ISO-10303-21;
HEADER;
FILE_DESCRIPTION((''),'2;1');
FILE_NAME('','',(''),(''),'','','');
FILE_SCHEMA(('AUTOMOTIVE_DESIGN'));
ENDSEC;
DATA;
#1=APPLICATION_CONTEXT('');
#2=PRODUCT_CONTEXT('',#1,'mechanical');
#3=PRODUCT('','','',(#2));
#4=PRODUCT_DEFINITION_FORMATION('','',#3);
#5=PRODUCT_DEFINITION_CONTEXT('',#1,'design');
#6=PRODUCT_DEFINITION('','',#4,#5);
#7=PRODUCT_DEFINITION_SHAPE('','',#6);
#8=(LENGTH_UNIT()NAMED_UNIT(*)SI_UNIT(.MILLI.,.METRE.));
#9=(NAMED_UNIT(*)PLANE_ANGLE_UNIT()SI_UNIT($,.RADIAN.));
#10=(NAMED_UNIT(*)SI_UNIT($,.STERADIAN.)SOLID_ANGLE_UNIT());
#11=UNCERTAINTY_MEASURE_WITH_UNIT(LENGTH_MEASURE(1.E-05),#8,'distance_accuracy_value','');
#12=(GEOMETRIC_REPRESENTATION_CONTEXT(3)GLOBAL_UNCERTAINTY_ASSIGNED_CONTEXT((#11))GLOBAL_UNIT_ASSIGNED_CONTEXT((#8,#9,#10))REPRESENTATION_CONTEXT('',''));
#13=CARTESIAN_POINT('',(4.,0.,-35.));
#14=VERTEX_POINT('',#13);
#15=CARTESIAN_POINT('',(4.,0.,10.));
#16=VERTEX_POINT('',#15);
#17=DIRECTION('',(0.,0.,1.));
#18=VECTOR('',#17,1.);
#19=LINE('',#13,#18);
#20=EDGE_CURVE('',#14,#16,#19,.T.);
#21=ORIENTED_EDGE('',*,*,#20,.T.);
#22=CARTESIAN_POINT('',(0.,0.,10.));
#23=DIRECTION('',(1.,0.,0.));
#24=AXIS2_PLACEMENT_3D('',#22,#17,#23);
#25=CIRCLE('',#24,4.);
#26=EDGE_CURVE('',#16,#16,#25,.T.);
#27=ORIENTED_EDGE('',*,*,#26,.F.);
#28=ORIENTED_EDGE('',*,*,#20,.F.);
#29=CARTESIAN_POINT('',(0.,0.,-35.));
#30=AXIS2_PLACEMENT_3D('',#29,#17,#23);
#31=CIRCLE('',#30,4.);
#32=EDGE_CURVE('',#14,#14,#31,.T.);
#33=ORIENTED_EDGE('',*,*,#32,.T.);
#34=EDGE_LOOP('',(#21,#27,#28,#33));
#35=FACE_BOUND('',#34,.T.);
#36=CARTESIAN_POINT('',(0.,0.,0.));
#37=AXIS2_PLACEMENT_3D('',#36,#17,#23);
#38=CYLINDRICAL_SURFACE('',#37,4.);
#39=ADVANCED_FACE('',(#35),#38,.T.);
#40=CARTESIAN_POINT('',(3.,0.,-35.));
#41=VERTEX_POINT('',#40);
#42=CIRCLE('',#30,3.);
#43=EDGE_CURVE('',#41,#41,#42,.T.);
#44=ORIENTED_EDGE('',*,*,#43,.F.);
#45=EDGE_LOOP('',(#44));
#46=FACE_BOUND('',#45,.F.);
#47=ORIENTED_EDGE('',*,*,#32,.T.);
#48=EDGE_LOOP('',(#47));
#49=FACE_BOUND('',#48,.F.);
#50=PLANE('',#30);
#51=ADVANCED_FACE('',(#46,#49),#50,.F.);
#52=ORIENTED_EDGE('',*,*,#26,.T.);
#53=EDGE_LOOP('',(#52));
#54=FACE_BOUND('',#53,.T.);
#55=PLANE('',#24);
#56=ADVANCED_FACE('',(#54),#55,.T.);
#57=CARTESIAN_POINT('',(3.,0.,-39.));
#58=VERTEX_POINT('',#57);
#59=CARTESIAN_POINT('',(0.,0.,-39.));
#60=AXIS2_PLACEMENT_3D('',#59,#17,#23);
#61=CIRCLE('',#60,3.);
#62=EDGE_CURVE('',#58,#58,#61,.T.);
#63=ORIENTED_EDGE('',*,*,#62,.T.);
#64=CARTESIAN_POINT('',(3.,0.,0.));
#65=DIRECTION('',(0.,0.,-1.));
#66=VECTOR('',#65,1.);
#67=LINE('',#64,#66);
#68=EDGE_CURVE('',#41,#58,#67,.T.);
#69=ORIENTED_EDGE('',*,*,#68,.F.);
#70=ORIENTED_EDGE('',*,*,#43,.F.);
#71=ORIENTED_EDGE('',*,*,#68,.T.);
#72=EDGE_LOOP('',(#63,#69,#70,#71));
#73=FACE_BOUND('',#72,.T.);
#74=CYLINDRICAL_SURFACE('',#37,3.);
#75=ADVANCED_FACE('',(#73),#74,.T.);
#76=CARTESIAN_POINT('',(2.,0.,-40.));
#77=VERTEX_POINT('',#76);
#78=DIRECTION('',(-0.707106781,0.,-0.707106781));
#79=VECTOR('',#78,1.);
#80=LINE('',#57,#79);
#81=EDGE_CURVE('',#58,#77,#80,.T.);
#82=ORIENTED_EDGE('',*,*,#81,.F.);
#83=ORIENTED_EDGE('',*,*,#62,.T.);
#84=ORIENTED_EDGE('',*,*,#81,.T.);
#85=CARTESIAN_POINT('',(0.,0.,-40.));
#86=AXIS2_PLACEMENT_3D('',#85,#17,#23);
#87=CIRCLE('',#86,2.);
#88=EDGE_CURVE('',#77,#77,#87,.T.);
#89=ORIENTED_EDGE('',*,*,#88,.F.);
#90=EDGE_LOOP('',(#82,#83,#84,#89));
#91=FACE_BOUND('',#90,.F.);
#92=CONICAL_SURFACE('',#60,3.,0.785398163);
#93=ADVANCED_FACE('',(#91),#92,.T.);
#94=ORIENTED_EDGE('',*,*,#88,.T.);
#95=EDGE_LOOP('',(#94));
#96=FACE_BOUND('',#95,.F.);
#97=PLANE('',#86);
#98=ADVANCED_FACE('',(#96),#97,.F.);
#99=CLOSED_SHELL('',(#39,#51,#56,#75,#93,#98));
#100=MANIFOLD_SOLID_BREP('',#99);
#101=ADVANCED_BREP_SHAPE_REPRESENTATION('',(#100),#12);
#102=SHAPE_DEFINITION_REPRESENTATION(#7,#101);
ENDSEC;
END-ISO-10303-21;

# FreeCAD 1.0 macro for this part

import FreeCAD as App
import Part
import Sketcher
Q = App.Units.Quantity


def edges_at(feature, points):
    """Names of the edges that pass closest to the given points."""
    edges = feature.Shape.Edges
    near = lambda p: min(range(len(edges)), key=lambda i: edges[i].distToShape(Part.Vertex(*p))[0])
    return sorted({f"Edge{near(p) + 1}" for p in points})

doc = App.newDocument("Part")
params = doc.addObject("Spreadsheet::Sheet", "Params")
for row, (alias, value) in enumerate([
    ("sketch1_diameter", "8 mm"),
    ("pad1_length", "35 mm"),
    ("pad1_length2", "10 mm"),
    ("sketch2_diameter", "6 mm"),
    ("pad2_length", "40 mm"),
    ("chamfer_size", "1 mm"),
], start=1):
    params.set(f"A{row}", alias)
    params.set(f"B{row}", "=" + value)
    params.setAlias(f"B{row}", alias)

body = doc.addObject("PartDesign::Body", "Body")

sketch1 = doc.addObject("Sketcher::SketchObject", "Sketch")
body.addObject(sketch1)
sketch1.AttachmentSupport = (doc.XY_Plane, [""])
sketch1.MapMode = "FlatFace"
sketch1.addGeometry(Part.Circle(App.Vector(0, 0, 0), App.Vector(0, 0, 1), 4), False)
sketch1.addConstraint(Sketcher.Constraint("Coincident", 0, 3, -1, 1))
sketch1.addConstraint(Sketcher.Constraint("Diameter", 0, Q("8 mm")))
sketch1.setExpression("Constraints[1]", "Params.sketch1_diameter")
pad1 = doc.addObject("PartDesign::Pad", "Pad")
body.addObject(pad1)
pad1.Profile = sketch1
pad1.Type = "TwoLengths"
pad1.setExpression("Length", "Params.pad1_length")
pad1.setExpression("Length2", "Params.pad1_length2")
pad1.Reversed = True

sketch2 = doc.addObject("Sketcher::SketchObject", "Sketch001")
body.addObject(sketch2)
sketch2.AttachmentSupport = (doc.XY_Plane, [""])
sketch2.MapMode = "FlatFace"
sketch2.addGeometry(Part.Circle(App.Vector(0, 0, 0), App.Vector(0, 0, 1), 3), False)
sketch2.addConstraint(Sketcher.Constraint("Coincident", 0, 3, -1, 1))
sketch2.addConstraint(Sketcher.Constraint("Diameter", 0, Q("6 mm")))
sketch2.setExpression("Constraints[1]", "Params.sketch2_diameter")
pad2 = doc.addObject("PartDesign::Pad", "Pad001")
body.addObject(pad2)
pad2.Profile = sketch2
pad2.setExpression("Length", "Params.pad2_length")
pad2.Reversed = True
doc.recompute()

chamfer = doc.addObject("PartDesign::Chamfer", "Chamfer")
body.addObject(chamfer)
chamfer.Base = (pad2, edges_at(pad2, [(-3, 0, -40)]))
chamfer.setExpression("Size", "Params.chamfer_size")

doc.recompute()
